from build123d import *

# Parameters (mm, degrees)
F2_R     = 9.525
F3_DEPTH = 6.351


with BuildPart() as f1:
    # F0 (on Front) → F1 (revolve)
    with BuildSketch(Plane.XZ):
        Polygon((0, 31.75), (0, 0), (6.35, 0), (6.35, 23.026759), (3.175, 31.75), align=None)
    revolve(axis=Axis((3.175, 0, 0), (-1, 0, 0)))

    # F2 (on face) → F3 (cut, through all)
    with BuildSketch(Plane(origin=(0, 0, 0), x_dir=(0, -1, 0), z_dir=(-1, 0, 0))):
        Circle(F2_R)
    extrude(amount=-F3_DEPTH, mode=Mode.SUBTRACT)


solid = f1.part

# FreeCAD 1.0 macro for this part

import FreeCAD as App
import Part
import Sketcher
Q = App.Units.Quantity

doc = App.newDocument("Part")
params = doc.addObject("Spreadsheet::Sheet", "Params")
for row, (alias, value) in enumerate([
    ("sketch1_width", "0.25 in"),
    ("sketch1_height", "1.25 in"),
    ("sketch1_width2", "0.125 in"),
    ("revolution_angle", "360 deg"),
    ("sketch2_diameter", "0.75 in"),
], start=1):
    params.set(f"A{row}", alias)
    params.set(f"B{row}", "=" + value)
    params.setAlias(f"B{row}", alias)

body = doc.addObject("PartDesign::Body", "Body")

# Sketch on XZ plane
sketch1 = doc.addObject("Sketcher::SketchObject", "Sketch")
body.addObject(sketch1)
sketch1.AttachmentSupport = (doc.XZ_Plane, [""])
sketch1.MapMode = "FlatFace"
sketch1.addGeometry([
    Part.LineSegment(App.Vector(0, 31.8, 0), App.Vector(0, 0, 0)),  # 0
    Part.LineSegment(App.Vector(0, 0, 0), App.Vector(6.3, 0, 0)),  # 1
    Part.LineSegment(App.Vector(6.3, 0, 0), App.Vector(6.3, 23, 0)),  # 2
    Part.LineSegment(App.Vector(6.3, 23, 0), App.Vector(3.2, 31.8, 0)),  # 3
    Part.LineSegment(App.Vector(3.2, 31.8, 0), App.Vector(0, 31.8, 0)),  # 4
], False)
sketch1.addConstraint([
    Sketcher.Constraint("Coincident", 0, 2, 1, 1),
    Sketcher.Constraint("Coincident", 1, 2, 2, 1),
    Sketcher.Constraint("Coincident", 2, 2, 3, 1),
    Sketcher.Constraint("Coincident", 3, 2, 4, 1),
    Sketcher.Constraint("Coincident", 4, 2, 0, 1),
    Sketcher.Constraint("Vertical", 0),
    Sketcher.Constraint("Horizontal", 1),
    Sketcher.Constraint("Vertical", 2),
    Sketcher.Constraint("Horizontal", 4),
    Sketcher.Constraint("Coincident", 0, 2, -1, 1),
    Sketcher.Constraint("Angle", 3, Q("110 deg")),
    Sketcher.Constraint("DistanceX", 1, 1, 1, 2, Q("0.25 in")),
    Sketcher.Constraint("DistanceY", 0, 2, 0, 1, Q("1.25 in")),
    Sketcher.Constraint("DistanceX", 4, 2, 4, 1, Q("0.125 in")),
])
sketch1.setExpression("Constraints[11]", "Params.sketch1_width")
sketch1.setExpression("Constraints[12]", "Params.sketch1_height")
sketch1.setExpression("Constraints[13]", "Params.sketch1_width2")
revolution = doc.addObject("PartDesign::Revolution", "Revolution")
body.addObject(revolution)
revolution.Profile = sketch1
revolution.ReferenceAxis = (sketch1, ["H_Axis"])
revolution.setExpression("Angle", "Params.revolution_angle")

# Sketch on YZ plane
sketch2 = doc.addObject("Sketcher::SketchObject", "Sketch001")
body.addObject(sketch2)
sketch2.AttachmentSupport = (doc.YZ_Plane, [""])
sketch2.MapMode = "FlatFace"
sketch2.addGeometry(Part.Circle(App.Vector(0, 0, 0), App.Vector(0, 0, 1), 10), False)
sketch2.addConstraint([
    Sketcher.Constraint("Coincident", 0, 3, -1, 1),
    Sketcher.Constraint("Diameter", 0, Q("0.75 in")),
])
sketch2.setExpression("Constraints[1]", "Params.sketch2_diameter")
pocket1 = doc.addObject("PartDesign::Pocket", "Pocket")
body.addObject(pocket1)
pocket1.Profile = sketch2
pocket1.Type = "ThroughAll"
pocket1.Reversed = True

doc.recompute()
